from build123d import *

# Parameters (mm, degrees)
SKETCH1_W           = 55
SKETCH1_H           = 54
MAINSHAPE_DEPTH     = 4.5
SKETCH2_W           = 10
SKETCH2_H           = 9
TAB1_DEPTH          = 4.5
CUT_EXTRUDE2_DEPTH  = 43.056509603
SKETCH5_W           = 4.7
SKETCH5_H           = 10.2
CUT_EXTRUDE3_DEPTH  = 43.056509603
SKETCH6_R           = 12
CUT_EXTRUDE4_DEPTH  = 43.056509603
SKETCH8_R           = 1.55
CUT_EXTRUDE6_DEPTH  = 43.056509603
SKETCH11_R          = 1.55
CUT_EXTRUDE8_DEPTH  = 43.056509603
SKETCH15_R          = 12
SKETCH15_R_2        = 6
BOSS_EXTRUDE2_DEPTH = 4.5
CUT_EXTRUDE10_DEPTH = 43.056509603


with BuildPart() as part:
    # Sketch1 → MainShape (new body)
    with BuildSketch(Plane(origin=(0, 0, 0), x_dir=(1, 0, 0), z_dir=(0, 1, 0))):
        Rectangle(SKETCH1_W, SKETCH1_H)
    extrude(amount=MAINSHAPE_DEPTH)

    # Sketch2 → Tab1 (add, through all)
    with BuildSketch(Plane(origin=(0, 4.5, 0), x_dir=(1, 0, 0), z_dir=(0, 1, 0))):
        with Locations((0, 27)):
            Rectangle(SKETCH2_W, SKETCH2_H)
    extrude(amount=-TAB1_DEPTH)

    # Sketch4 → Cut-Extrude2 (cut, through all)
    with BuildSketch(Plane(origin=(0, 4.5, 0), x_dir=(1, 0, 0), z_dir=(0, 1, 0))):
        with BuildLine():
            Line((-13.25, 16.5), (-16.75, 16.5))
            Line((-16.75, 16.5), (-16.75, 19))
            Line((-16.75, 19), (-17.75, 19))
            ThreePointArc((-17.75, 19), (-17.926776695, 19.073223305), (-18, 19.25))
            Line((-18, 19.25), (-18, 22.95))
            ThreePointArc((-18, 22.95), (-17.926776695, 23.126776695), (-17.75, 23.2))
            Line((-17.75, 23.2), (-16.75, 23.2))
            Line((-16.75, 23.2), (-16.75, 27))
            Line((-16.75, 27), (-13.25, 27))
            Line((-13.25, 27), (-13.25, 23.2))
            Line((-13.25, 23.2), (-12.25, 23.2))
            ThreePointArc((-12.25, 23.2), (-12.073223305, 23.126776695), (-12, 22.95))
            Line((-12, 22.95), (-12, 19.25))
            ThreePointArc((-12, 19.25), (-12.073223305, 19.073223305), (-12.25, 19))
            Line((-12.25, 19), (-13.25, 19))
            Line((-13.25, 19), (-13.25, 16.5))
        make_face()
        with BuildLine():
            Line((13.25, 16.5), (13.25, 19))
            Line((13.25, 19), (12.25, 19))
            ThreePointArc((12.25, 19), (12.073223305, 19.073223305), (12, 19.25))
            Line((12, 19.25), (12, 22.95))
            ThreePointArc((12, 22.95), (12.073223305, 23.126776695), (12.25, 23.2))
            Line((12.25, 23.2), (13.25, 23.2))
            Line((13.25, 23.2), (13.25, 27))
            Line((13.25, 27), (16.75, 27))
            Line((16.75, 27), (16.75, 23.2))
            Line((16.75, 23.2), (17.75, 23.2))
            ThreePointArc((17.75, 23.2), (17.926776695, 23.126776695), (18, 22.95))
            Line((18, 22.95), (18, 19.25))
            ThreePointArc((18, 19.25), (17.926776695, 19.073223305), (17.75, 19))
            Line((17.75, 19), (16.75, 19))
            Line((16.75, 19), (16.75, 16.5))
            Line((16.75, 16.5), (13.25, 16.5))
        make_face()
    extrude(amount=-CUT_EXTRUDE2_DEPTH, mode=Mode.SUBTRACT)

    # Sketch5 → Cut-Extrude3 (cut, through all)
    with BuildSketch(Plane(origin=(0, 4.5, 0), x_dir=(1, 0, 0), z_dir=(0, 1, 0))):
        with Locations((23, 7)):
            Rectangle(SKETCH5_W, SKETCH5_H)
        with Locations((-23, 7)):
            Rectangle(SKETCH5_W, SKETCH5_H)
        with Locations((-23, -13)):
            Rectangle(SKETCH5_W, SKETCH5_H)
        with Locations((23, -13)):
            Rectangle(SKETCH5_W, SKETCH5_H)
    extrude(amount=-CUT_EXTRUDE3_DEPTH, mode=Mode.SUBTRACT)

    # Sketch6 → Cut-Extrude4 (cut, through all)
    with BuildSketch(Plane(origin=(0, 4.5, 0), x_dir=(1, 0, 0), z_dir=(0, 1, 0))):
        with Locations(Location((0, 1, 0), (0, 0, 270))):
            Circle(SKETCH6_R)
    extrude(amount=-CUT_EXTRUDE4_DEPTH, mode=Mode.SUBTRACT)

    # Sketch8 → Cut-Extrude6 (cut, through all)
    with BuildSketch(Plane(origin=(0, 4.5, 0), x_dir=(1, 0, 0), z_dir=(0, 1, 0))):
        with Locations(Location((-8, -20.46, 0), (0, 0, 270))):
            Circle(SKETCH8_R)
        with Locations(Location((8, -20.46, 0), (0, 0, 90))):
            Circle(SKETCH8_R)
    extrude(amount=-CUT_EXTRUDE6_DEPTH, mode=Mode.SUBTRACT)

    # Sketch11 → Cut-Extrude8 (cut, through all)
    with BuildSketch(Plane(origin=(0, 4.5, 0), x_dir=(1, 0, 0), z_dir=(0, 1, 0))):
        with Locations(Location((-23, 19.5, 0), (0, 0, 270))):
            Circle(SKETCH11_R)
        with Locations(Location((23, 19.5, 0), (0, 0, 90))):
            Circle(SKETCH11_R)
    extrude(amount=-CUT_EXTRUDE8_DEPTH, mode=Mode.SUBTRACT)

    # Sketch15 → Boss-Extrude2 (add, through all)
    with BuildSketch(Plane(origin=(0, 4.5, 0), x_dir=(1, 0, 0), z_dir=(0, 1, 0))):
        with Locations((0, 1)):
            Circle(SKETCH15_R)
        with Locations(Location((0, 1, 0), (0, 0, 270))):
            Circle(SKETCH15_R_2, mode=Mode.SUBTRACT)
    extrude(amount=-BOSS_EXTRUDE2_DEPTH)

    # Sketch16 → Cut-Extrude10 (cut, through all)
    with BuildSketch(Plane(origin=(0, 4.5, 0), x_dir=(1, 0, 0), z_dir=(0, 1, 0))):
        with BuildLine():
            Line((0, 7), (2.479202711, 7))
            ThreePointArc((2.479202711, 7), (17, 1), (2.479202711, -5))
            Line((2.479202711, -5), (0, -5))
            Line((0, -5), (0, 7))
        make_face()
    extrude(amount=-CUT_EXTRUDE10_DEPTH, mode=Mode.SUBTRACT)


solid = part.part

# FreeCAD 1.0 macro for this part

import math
import FreeCAD as App
import Part
import Sketcher

V = App.Vector
Q = App.Units.Quantity

doc = App.newDocument("Part")
body = doc.addObject("PartDesign::Body", "Body")

# Sketch on XZ plane
sketch1 = body.newObject("Sketcher::SketchObject", "Sketch")
sketch1.AttachmentSupport = (doc.getObject("XZ_Plane"), [""])
sketch1.MapMode = "FlatFace"
sketch1.addGeometry(Part.LineSegment(V(-28, -27, 0), V(-28, 27, 0)), False)
sketch1.addGeometry(Part.LineSegment(V(-28, 27, 0), V(28, 27, 0)), False)
sketch1.addGeometry(Part.LineSegment(V(28, 27, 0), V(28, -27, 0)), False)
sketch1.addGeometry(Part.LineSegment(V(28, -27, 0), V(-28, -27, 0)), False)
sketch1.addConstraint(Sketcher.Constraint("Coincident", 0, 2, 1, 1))
sketch1.addConstraint(Sketcher.Constraint("Coincident", 1, 2, 2, 1))
sketch1.addConstraint(Sketcher.Constraint("Coincident", 2, 2, 3, 1))
sketch1.addConstraint(Sketcher.Constraint("Coincident", 3, 2, 0, 1))
sketch1.addConstraint(Sketcher.Constraint("Vertical", 0))
sketch1.addConstraint(Sketcher.Constraint("Horizontal", 1))
sketch1.addConstraint(Sketcher.Constraint("Vertical", 2))
sketch1.addConstraint(Sketcher.Constraint("Horizontal", 3))
sketch1.addConstraint(Sketcher.Constraint("Symmetric", 0, 2, 2, 2, -1, 1))
sketch1.addConstraint(Sketcher.Constraint("DistanceX", 1, 1, 1, 2, Q("55 mm")))
sketch1.addConstraint(Sketcher.Constraint("DistanceY", 0, 1, 0, 2, Q("54 mm")))
pad1 = body.newObject("PartDesign::Pad", "Pad")
pad1.Profile = sketch1
pad1.Length = 4.5
pad1.Reversed = True

# Sketch on XZ plane
sketch2 = body.newObject("Sketcher::SketchObject", "Sketch001")
sketch2.AttachmentSupport = (doc.getObject("XZ_Plane"), [""])
sketch2.MapMode = "FlatFace"
sketch2.AttachmentOffset = App.Placement(V(0, 0, -4.5), App.Rotation())
sketch2.addGeometry(Part.LineSegment(V(-5, -32, 0), V(-5, -22, 0)), False)
sketch2.addGeometry(Part.LineSegment(V(-5, -22, 0), V(5, -22, 0)), False)
sketch2.addGeometry(Part.LineSegment(V(5, -22, 0), V(5, -32, 0)), False)
sketch2.addGeometry(Part.LineSegment(V(5, -32, 0), V(-5, -32, 0)), False)
sketch2.addConstraint(Sketcher.Constraint("Coincident", 0, 2, 1, 1))
sketch2.addConstraint(Sketcher.Constraint("Coincident", 1, 2, 2, 1))
sketch2.addConstraint(Sketcher.Constraint("Coincident", 2, 2, 3, 1))
sketch2.addConstraint(Sketcher.Constraint("Coincident", 3, 2, 0, 1))
sketch2.addConstraint(Sketcher.Constraint("Vertical", 0))
sketch2.addConstraint(Sketcher.Constraint("Horizontal", 1))
sketch2.addConstraint(Sketcher.Constraint("Vertical", 2))
sketch2.addConstraint(Sketcher.Constraint("Horizontal", 3))
sketch2.addConstraint(Sketcher.Constraint("DistanceX", 1, 1, 1, 2, Q("10 mm")))
sketch2.addConstraint(Sketcher.Constraint("DistanceY", 0, 1, 0, 2, Q("9 mm")))
sketch2.addConstraint(Sketcher.Constraint("DistanceX", 0, 2, -1, 1, Q("5 mm")))
sketch2.addConstraint(Sketcher.Constraint("DistanceY", 0, 2, -1, 1, Q("22.5 mm")))
pad2 = body.newObject("PartDesign::Pad", "Pad001")
pad2.Profile = sketch2
pad2.Type = "UpToLast"

# Sketch on XZ plane
sketch3 = body.newObject("Sketcher::SketchObject", "Sketch002")
sketch3.AttachmentSupport = (doc.getObject("XZ_Plane"), [""])
sketch3.MapMode = "FlatFace"
sketch3.AttachmentOffset = App.Placement(V(0, 0, -4.5), App.Rotation())
sketch3.addGeometry(Part.LineSegment(V(-16.75, -16.5, 0), V(-13.25, -16.5, 0)), False)
sketch3.addGeometry(Part.LineSegment(V(-13.25, -16.5, 0), V(-13.25, -19, 0)), False)
sketch3.addGeometry(Part.LineSegment(V(-13.25, -19, 0), V(-12.25, -19, 0)), False)
sketch3.addGeometry(Part.ArcOfCircle(Part.Circle(V(-12.25, -19.25, 0), V(0, 0, 1), 0.25), math.radians(0), math.radians(90)), False)
sketch3.addGeometry(Part.LineSegment(V(-12, -19.25, 0), V(-12, -22.95, 0)), False)
sketch3.addGeometry(Part.ArcOfCircle(Part.Circle(V(-12.25, -22.95, 0), V(0, 0, 1), 0.25), math.radians(-90), math.radians(0)), False)
sketch3.addGeometry(Part.LineSegment(V(-12.25, -23.2, 0), V(-13.25, -23.2, 0)), False)
sketch3.addGeometry(Part.LineSegment(V(-13.25, -23.2, 0), V(-13.25, -27, 0)), False)
sketch3.addGeometry(Part.LineSegment(V(-13.25, -27, 0), V(-16.75, -27, 0)), False)
sketch3.addGeometry(Part.LineSegment(V(-16.75, -27, 0), V(-16.75, -23.2, 0)), False)
sketch3.addGeometry(Part.LineSegment(V(-16.75, -23.2, 0), V(-17.75, -23.2, 0)), False)
sketch3.addGeometry(Part.ArcOfCircle(Part.Circle(V(-17.75, -22.95, 0), V(0, 0, 1), 0.25), math.radians(-180), math.radians(-90)), False)
sketch3.addGeometry(Part.LineSegment(V(-18, -22.95, 0), V(-18, -19.25, 0)), False)
sketch3.addGeometry(Part.ArcOfCircle(Part.Circle(V(-17.75, -19.25, 0), V(0, 0, 1), 0.25), math.radians(90), math.radians(180)), False)
sketch3.addGeometry(Part.LineSegment(V(-17.75, -19, 0), V(-16.75, -19, 0)), False)
sketch3.addGeometry(Part.LineSegment(V(-16.75, -19, 0), V(-16.75, -16.5, 0)), False)
sketch3.addGeometry(Part.LineSegment(V(13.25, -19, 0), V(13.25, -16.5, 0)), False)
sketch3.addGeometry(Part.LineSegment(V(13.25, -16.5, 0), V(16.75, -16.5, 0)), False)
sketch3.addGeometry(Part.LineSegment(V(16.75, -16.5, 0), V(16.75, -19, 0)), False)
sketch3.addGeometry(Part.LineSegment(V(16.75, -19, 0), V(17.75, -19, 0)), False)
sketch3.addGeometry(Part.ArcOfCircle(Part.Circle(V(17.75, -19.25, 0), V(0, 0, 1), 0.25), math.radians(0), math.radians(90)), False)
sketch3.addGeometry(Part.LineSegment(V(18, -19.25, 0), V(18, -22.95, 0)), False)
sketch3.addGeometry(Part.ArcOfCircle(Part.Circle(V(17.75, -22.95, 0), V(0, 0, 1), 0.25), math.radians(-90), math.radians(0)), False)
sketch3.addGeometry(Part.LineSegment(V(17.75, -23.2, 0), V(16.75, -23.2, 0)), False)
sketch3.addGeometry(Part.LineSegment(V(16.75, -23.2, 0), V(16.75, -27, 0)), False)
sketch3.addGeometry(Part.LineSegment(V(16.75, -27, 0), V(13.25, -27, 0)), False)
sketch3.addGeometry(Part.LineSegment(V(13.25, -27, 0), V(13.25, -23.2, 0)), False)
sketch3.addGeometry(Part.LineSegment(V(13.25, -23.2, 0), V(12.25, -23.2, 0)), False)
sketch3.addGeometry(Part.ArcOfCircle(Part.Circle(V(12.25, -22.95, 0), V(0, 0, 1), 0.25), math.radians(-180), math.radians(-90)), False)
sketch3.addGeometry(Part.LineSegment(V(12, -22.95, 0), V(12, -19.25, 0)), False)
sketch3.addGeometry(Part.ArcOfCircle(Part.Circle(V(12.25, -19.25, 0), V(0, 0, 1), 0.25), math.radians(90), math.radians(180)), False)
sketch3.addGeometry(Part.LineSegment(V(12.25, -19, 0), V(13.25, -19, 0)), False)
sketch3.addConstraint(Sketcher.Constraint("Coincident", 0, 2, 1, 1))
sketch3.addConstraint(Sketcher.Constraint("Coincident", 1, 2, 2, 1))
sketch3.addConstraint(Sketcher.Constraint("Tangent", 2, 2, 3, 2))
sketch3.addConstraint(Sketcher.Constraint("Tangent", 3, 1, 4, 1))
sketch3.addConstraint(Sketcher.Constraint("Tangent", 4, 2, 5, 2))
sketch3.addConstraint(Sketcher.Constraint("Tangent", 5, 1, 6, 1))
sketch3.addConstraint(Sketcher.Constraint("Coincident", 6, 2, 7, 1))
sketch3.addConstraint(Sketcher.Constraint("Coincident", 7, 2, 8, 1))
sketch3.addConstraint(Sketcher.Constraint("Coincident", 8, 2, 9, 1))
sketch3.addConstraint(Sketcher.Constraint("Coincident", 9, 2, 10, 1))
sketch3.addConstraint(Sketcher.Constraint("Tangent", 10, 2, 11, 2))
sketch3.addConstraint(Sketcher.Constraint("Tangent", 11, 1, 12, 1))
sketch3.addConstraint(Sketcher.Constraint("Tangent", 12, 2, 13, 2))
sketch3.addConstraint(Sketcher.Constraint("Tangent", 13, 1, 14, 1))
sketch3.addConstraint(Sketcher.Constraint("Coincident", 14, 2, 15, 1))
sketch3.addConstraint(Sketcher.Constraint("Coincident", 15, 2, 0, 1))
sketch3.addConstraint(Sketcher.Constraint("Coincident", 16, 2, 17, 1))
sketch3.addConstraint(Sketcher.Constraint("Coincident", 17, 2, 18, 1))
sketch3.addConstraint(Sketcher.Constraint("Coincident", 18, 2, 19, 1))
sketch3.addConstraint(Sketcher.Constraint("Tangent", 19, 2, 20, 2))
sketch3.addConstraint(Sketcher.Constraint("Tangent", 20, 1, 21, 1))
sketch3.addConstraint(Sketcher.Constraint("Tangent", 21, 2, 22, 2))
sketch3.addConstraint(Sketcher.Constraint("Tangent", 22, 1, 23, 1))
sketch3.addConstraint(Sketcher.Constraint("Coincident", 23, 2, 24, 1))
sketch3.addConstraint(Sketcher.Constraint("Coincident", 24, 2, 25, 1))
sketch3.addConstraint(Sketcher.Constraint("Coincident", 25, 2, 26, 1))
sketch3.addConstraint(Sketcher.Constraint("Coincident", 26, 2, 27, 1))
sketch3.addConstraint(Sketcher.Constraint("Tangent", 27, 2, 28, 2))
sketch3.addConstraint(Sketcher.Constraint("Tangent", 28, 1, 29, 1))
sketch3.addConstraint(Sketcher.Constraint("Tangent", 29, 2, 30, 2))
sketch3.addConstraint(Sketcher.Constraint("Tangent", 30, 1, 31, 1))
sketch3.addConstraint(Sketcher.Constraint("Coincident", 31, 2, 16, 1))
sketch3.addConstraint(Sketcher.Constraint("Horizontal", 0))
sketch3.addConstraint(Sketcher.Constraint("Vertical", 1))
sketch3.addConstraint(Sketcher.Constraint("Horizontal", 2))
sketch3.addConstraint(Sketcher.Constraint("Vertical", 4))
sketch3.addConstraint(Sketcher.Constraint("Horizontal", 6))
sketch3.addConstraint(Sketcher.Constraint("Vertical", 7))
sketch3.addConstraint(Sketcher.Constraint("Horizontal", 8))
sketch3.addConstraint(Sketcher.Constraint("Vertical", 9))
sketch3.addConstraint(Sketcher.Constraint("Horizontal", 10))
sketch3.addConstraint(Sketcher.Constraint("Vertical", 12))
sketch3.addConstraint(Sketcher.Constraint("Horizontal", 14))
sketch3.addConstraint(Sketcher.Constraint("Vertical", 15))
sketch3.addConstraint(Sketcher.Constraint("Vertical", 16))
sketch3.addConstraint(Sketcher.Constraint("Horizontal", 17))
sketch3.addConstraint(Sketcher.Constraint("Vertical", 18))
sketch3.addConstraint(Sketcher.Constraint("Horizontal", 19))
sketch3.addConstraint(Sketcher.Constraint("Vertical", 21))
sketch3.addConstraint(Sketcher.Constraint("Horizontal", 23))
sketch3.addConstraint(Sketcher.Constraint("Vertical", 24))
sketch3.addConstraint(Sketcher.Constraint("Horizontal", 25))
sketch3.addConstraint(Sketcher.Constraint("Vertical", 26))
sketch3.addConstraint(Sketcher.Constraint("Horizontal", 27))
sketch3.addConstraint(Sketcher.Constraint("Vertical", 29))
sketch3.addConstraint(Sketcher.Constraint("Horizontal", 31))
sketch3.addConstraint(Sketcher.Constraint("Equal", 3, 5))
sketch3.addConstraint(Sketcher.Constraint("Equal", 5, 11))
sketch3.addConstraint(Sketcher.Constraint("Equal", 11, 13))
sketch3.addConstraint(Sketcher.Constraint("Equal", 13, 20))
sketch3.addConstraint(Sketcher.Constraint("Equal", 20, 22))
sketch3.addConstraint(Sketcher.Constraint("Equal", 22, 28))
sketch3.addConstraint(Sketcher.Constraint("Equal", 28, 30))
sketch3.addConstraint(Sketcher.Constraint("Symmetric", 13, 3, 20, 3, -2))
sketch3.addConstraint(Sketcher.Constraint("Symmetric", 5, 3, 28, 3, -2))
sketch3.addConstraint(Sketcher.Constraint("Symmetric", 0, 2, 16, 2, -2))
sketch3.addConstraint(Sketcher.Constraint("Symmetric", 9, 2, 23, 2, -2))
sketch3.addConstraint(Sketcher.Constraint("Symmetric", 7, 2, 25, 2, -2))
sketch3.addConstraint(Sketcher.Constraint("Horizontal", 5, 3, 11, 3))
sketch3.addConstraint(Sketcher.Constraint("Horizontal", 3, 3, 13, 3))
sketch3.addConstraint(Sketcher.Constraint("Horizontal", 20, 3, 30, 3))
sketch3.addConstraint(Sketcher.Constraint("Vertical", 1, 2, 6, 2))
sketch3.addConstraint(Sketcher.Constraint("Vertical", 9, 2, 14, 2))
sketch3.addConstraint(Sketcher.Constraint("Vertical", 18, 2, 23, 2))
sketch3.addConstraint(Sketcher.Constraint("Equal", 6, 10))
sketch3.addConstraint(Sketcher.Constraint("DistanceX", 2, 1, 2, 2, Q("1 mm")))
sketch3.addConstraint(Sketcher.Constraint("Radius", 3, Q("0.25 mm")))
sketch3.addConstraint(Sketcher.Constraint("DistanceX", 0, 1, 0, 2, Q("3.5 mm")))
sketch3.addConstraint(Sketcher.Constraint("DistanceY", 1, 2, 1, 1, Q("2.5 mm")))
sketch3.addConstraint(Sketcher.Constraint("DistanceY", 4, 2, 4, 1, Q("3.7 mm")))
sketch3.addConstraint(Sketcher.Constraint("DistanceY", 7, 2, 7, 1, Q("3.8 mm")))
sketch3.addConstraint(Sketcher.Constraint("DistanceY", 1, 2, -1, 1, Q("19 mm")))
sketch3.addConstraint(Sketcher.Constraint("DistanceX", 3, 1, -1, 1, Q("12 mm")))
pocket1 = body.newObject("PartDesign::Pocket", "Pocket")
pocket1.Profile = sketch3
pocket1.Type = "ThroughAll"
pocket1.Reversed = True

# Sketch on XZ plane
sketch4 = body.newObject("Sketcher::SketchObject", "Sketch003")
sketch4.AttachmentSupport = (doc.getObject("XZ_Plane"), [""])
sketch4.MapMode = "FlatFace"
sketch4.AttachmentOffset = App.Placement(V(0, 0, -4.5), App.Rotation())
sketch4.addGeometry(Part.LineSegment(V(20.6, -12.1, 0), V(20.6, -1.9, 0)), False)
sketch4.addGeometry(Part.LineSegment(V(20.6, -1.9, 0), V(25.4, -1.9, 0)), False)
sketch4.addGeometry(Part.LineSegment(V(25.4, -1.9, 0), V(25.4, -12.1, 0)), False)
sketch4.addGeometry(Part.LineSegment(V(25.4, -12.1, 0), V(20.6, -12.1, 0)), False)
sketch4.addGeometry(Part.LineSegment(V(-25.4, -12.1, 0), V(-25.4, -1.9, 0)), False)
sketch4.addGeometry(Part.LineSegment(V(-25.4, -1.9, 0), V(-20.6, -1.9, 0)), False)
sketch4.addGeometry(Part.LineSegment(V(-20.6, -1.9, 0), V(-20.6, -12.1, 0)), False)
sketch4.addGeometry(Part.LineSegment(V(-20.6, -12.1, 0), V(-25.4, -12.1, 0)), False)
sketch4.addGeometry(Part.LineSegment(V(-25.4, 7.9, 0), V(-25.4, 18.1, 0)), False)
sketch4.addGeometry(Part.LineSegment(V(-25.4, 18.1, 0), V(-20.6, 18.1, 0)), False)
sketch4.addGeometry(Part.LineSegment(V(-20.6, 18.1, 0), V(-20.6, 7.9, 0)), False)
sketch4.addGeometry(Part.LineSegment(V(-20.6, 7.9, 0), V(-25.4, 7.9, 0)), False)
sketch4.addGeometry(Part.LineSegment(V(20.6, 7.9, 0), V(20.6, 18.1, 0)), False)
sketch4.addGeometry(Part.LineSegment(V(20.6, 18.1, 0), V(25.4, 18.1, 0)), False)
sketch4.addGeometry(Part.LineSegment(V(25.4, 18.1, 0), V(25.4, 7.9, 0)), False)
sketch4.addGeometry(Part.LineSegment(V(25.4, 7.9, 0), V(20.6, 7.9, 0)), False)
sketch4.addConstraint(Sketcher.Constraint("Coincident", 0, 2, 1, 1))
sketch4.addConstraint(Sketcher.Constraint("Coincident", 1, 2, 2, 1))
sketch4.addConstraint(Sketcher.Constraint("Coincident", 2, 2, 3, 1))
sketch4.addConstraint(Sketcher.Constraint("Coincident", 3, 2, 0, 1))
sketch4.addConstraint(Sketcher.Constraint("Coincident", 4, 2, 5, 1))
sketch4.addConstraint(Sketcher.Constraint("Coincident", 5, 2, 6, 1))
sketch4.addConstraint(Sketcher.Constraint("Coincident", 6, 2, 7, 1))
sketch4.addConstraint(Sketcher.Constraint("Coincident", 7, 2, 4, 1))
sketch4.addConstraint(Sketcher.Constraint("Coincident", 8, 2, 9, 1))
sketch4.addConstraint(Sketcher.Constraint("Coincident", 9, 2, 10, 1))
sketch4.addConstraint(Sketcher.Constraint("Coincident", 10, 2, 11, 1))
sketch4.addConstraint(Sketcher.Constraint("Coincident", 11, 2, 8, 1))
sketch4.addConstraint(Sketcher.Constraint("Coincident", 12, 2, 13, 1))
sketch4.addConstraint(Sketcher.Constraint("Coincident", 13, 2, 14, 1))
sketch4.addConstraint(Sketcher.Constraint("Coincident", 14, 2, 15, 1))
sketch4.addConstraint(Sketcher.Constraint("Coincident", 15, 2, 12, 1))
sketch4.addConstraint(Sketcher.Constraint("Vertical", 0))
sketch4.addConstraint(Sketcher.Constraint("Horizontal", 1))
sketch4.addConstraint(Sketcher.Constraint("Vertical", 2))
sketch4.addConstraint(Sketcher.Constraint("Horizontal", 3))
sketch4.addConstraint(Sketcher.Constraint("Vertical", 4))
sketch4.addConstraint(Sketcher.Constraint("Horizontal", 5))
sketch4.addConstraint(Sketcher.Constraint("Vertical", 6))
sketch4.addConstraint(Sketcher.Constraint("Horizontal", 7))
sketch4.addConstraint(Sketcher.Constraint("Vertical", 8))
sketch4.addConstraint(Sketcher.Constraint("Horizontal", 9))
sketch4.addConstraint(Sketcher.Constraint("Vertical", 10))
sketch4.addConstraint(Sketcher.Constraint("Horizontal", 11))
sketch4.addConstraint(Sketcher.Constraint("Vertical", 12))
sketch4.addConstraint(Sketcher.Constraint("Horizontal", 13))
sketch4.addConstraint(Sketcher.Constraint("Vertical", 14))
sketch4.addConstraint(Sketcher.Constraint("Horizontal", 15))
sketch4.addConstraint(Sketcher.Constraint("Symmetric", 1, 2, 4, 2, -2))
sketch4.addConstraint(Sketcher.Constraint("Symmetric", 3, 2, 6, 2, -2))
sketch4.addConstraint(Sketcher.Constraint("Symmetric", 9, 2, 12, 2, -2))
sketch4.addConstraint(Sketcher.Constraint("Symmetric", 11, 2, 14, 2, -2))
sketch4.addConstraint(Sketcher.Constraint("Vertical", 7, 2, 8, 2))
sketch4.addConstraint(Sketcher.Constraint("Vertical", 6, 2, 9, 2))
sketch4.addConstraint(Sketcher.Constraint("Equal", 6, 8))
sketch4.addConstraint(Sketcher.Constraint("DistanceX", 1, 1, 1, 2, Q("4.7 mm")))
sketch4.addConstraint(Sketcher.Constraint("DistanceY", 0, 1, 0, 2, Q("10.2 mm")))
sketch4.addConstraint(Sketcher.Constraint("DistanceX", 4, 2, 0, 2, Q("46 mm")))
sketch4.addConstraint(Sketcher.Constraint("DistanceY", 4, 2, 8, 2, Q("20 mm")))
sketch4.addConstraint(Sketcher.Constraint("DistanceY", 0, 2, -1, 1, Q("1.9 mm")))
pocket2 = body.newObject("PartDesign::Pocket", "Pocket001")
pocket2.Profile = sketch4
pocket2.Type = "ThroughAll"
pocket2.Reversed = True

# Sketch on XZ plane
sketch5 = body.newObject("Sketcher::SketchObject", "Sketch004")
sketch5.AttachmentSupport = (doc.getObject("XZ_Plane"), [""])
sketch5.MapMode = "FlatFace"
sketch5.AttachmentOffset = App.Placement(V(0, 0, -4.5), App.Rotation())
sketch5.addGeometry(Part.Circle(V(0, -1, 0), V(0, 0, 1), 12), False)
sketch5.addConstraint(Sketcher.Constraint("PointOnObject", 0, 3, -2))
sketch5.addConstraint(Sketcher.Constraint("Diameter", 0, Q("24 mm")))
sketch5.addConstraint(Sketcher.Constraint("DistanceY", 0, 3, -1, 1, Q("1 mm")))
pocket3 = body.newObject("PartDesign::Pocket", "Pocket002")
pocket3.Profile = sketch5
pocket3.Type = "ThroughAll"
pocket3.Reversed = True

# Sketch on XZ plane
sketch6 = body.newObject("Sketcher::SketchObject", "Sketch005")
sketch6.AttachmentSupport = (doc.getObject("XZ_Plane"), [""])
sketch6.MapMode = "FlatFace"
sketch6.AttachmentOffset = App.Placement(V(0, 0, -4.5), App.Rotation())
sketch6.addGeometry(Part.Circle(V(-8, 20.5, 0), V(0, 0, 1), 1.6), False)
sketch6.addGeometry(Part.Circle(V(8, 20.5, 0), V(0, 0, 1), 1.6), False)
sketch6.addConstraint(Sketcher.Constraint("Equal", 0, 1))
sketch6.addConstraint(Sketcher.Constraint("Symmetric", 0, 3, 1, 3, -2))
sketch6.addConstraint(Sketcher.Constraint("Diameter", 0, Q("3.1 mm")))
sketch6.addConstraint(Sketcher.Constraint("DistanceX", 0, 3, -1, 1, Q("8 mm")))
sketch6.addConstraint(Sketcher.Constraint("DistanceY", -1, 1, 0, 3, Q("20.46 mm")))
pocket4 = body.newObject("PartDesign::Pocket", "Pocket003")
pocket4.Profile = sketch6
pocket4.Type = "ThroughAll"
pocket4.Reversed = True

# Sketch on XZ plane
sketch7 = body.newObject("Sketcher::SketchObject", "Sketch006")
sketch7.AttachmentSupport = (doc.getObject("XZ_Plane"), [""])
sketch7.MapMode = "FlatFace"
sketch7.AttachmentOffset = App.Placement(V(0, 0, -4.5), App.Rotation())
sketch7.addGeometry(Part.Circle(V(-23, -19.5, 0), V(0, 0, 1), 1.6), False)
sketch7.addGeometry(Part.Circle(V(23, -19.5, 0), V(0, 0, 1), 1.6), False)
sketch7.addConstraint(Sketcher.Constraint("Equal", 0, 1))
sketch7.addConstraint(Sketcher.Constraint("Symmetric", 0, 3, 1, 3, -2))
sketch7.addConstraint(Sketcher.Constraint("Diameter", 0, Q("3.1 mm")))
sketch7.addConstraint(Sketcher.Constraint("DistanceX", 0, 3, -1, 1, Q("23 mm")))
sketch7.addConstraint(Sketcher.Constraint("DistanceY", 0, 3, -1, 1, Q("19.5 mm")))
pocket5 = body.newObject("PartDesign::Pocket", "Pocket004")
pocket5.Profile = sketch7
pocket5.Type = "ThroughAll"
pocket5.Reversed = True

# Sketch on XZ plane
sketch8 = body.newObject("Sketcher::SketchObject", "Sketch007")
sketch8.AttachmentSupport = (doc.getObject("XZ_Plane"), [""])
sketch8.MapMode = "FlatFace"
sketch8.AttachmentOffset = App.Placement(V(0, 0, -4.5), App.Rotation())
sketch8.addGeometry(Part.Circle(V(0, -1, 0), V(0, 0, 1), 12), False)
sketch8.addGeometry(Part.Circle(V(0, -1, 0), V(0, 0, 1), 6), False)
sketch8.addConstraint(Sketcher.Constraint("Coincident", 1, 3, 0, 3))
sketch8.addConstraint(Sketcher.Constraint("PointOnObject", 0, 3, -2))
sketch8.addConstraint(Sketcher.Constraint("Diameter", 0, Q("24 mm")))
sketch8.addConstraint(Sketcher.Constraint("Diameter", 1, Q("12 mm")))
sketch8.addConstraint(Sketcher.Constraint("DistanceY", 0, 3, -1, 1, Q("1 mm")))
pad3 = body.newObject("PartDesign::Pad", "Pad002")
pad3.Profile = sketch8
pad3.Length = 4.5

# Sketch on XZ plane
sketch9 = body.newObject("Sketcher::SketchObject", "Sketch008")
sketch9.AttachmentSupport = (doc.getObject("XZ_Plane"), [""])
sketch9.MapMode = "FlatFace"
sketch9.AttachmentOffset = App.Placement(V(0, 0, -4.5), App.Rotation())
sketch9.addGeometry(Part.LineSegment(V(2.5, -7, 0), V(0, -7, 0)), False)
sketch9.addGeometry(Part.LineSegment(V(0, -7, 0), V(0, 5, 0)), False)
sketch9.addGeometry(Part.LineSegment(V(0, 5, 0), V(2.5, 5, 0)), False)
sketch9.addGeometry(Part.ArcOfCircle(Part.Circle(V(8.5, -1, 0), V(0, 0, 1), 8.5), math.radians(-135), math.radians(135)), False)
sketch9.addConstraint(Sketcher.Constraint("Coincident", 0, 2, 1, 1))
sketch9.addConstraint(Sketcher.Constraint("Coincident", 1, 2, 2, 1))
sketch9.addConstraint(Sketcher.Constraint("Coincident", 2, 2, 3, 2))
sketch9.addConstraint(Sketcher.Constraint("Coincident", 3, 1, 0, 1))
sketch9.addConstraint(Sketcher.Constraint("Horizontal", 0))
sketch9.addConstraint(Sketcher.Constraint("Vertical", 1))
sketch9.addConstraint(Sketcher.Constraint("Horizontal", 2))
sketch9.addConstraint(Sketcher.Constraint("PointOnObject", 0, 2, -2))
sketch9.addConstraint(Sketcher.Constraint("Vertical", 2, 2, 3, 1))
sketch9.addConstraint(Sketcher.Constraint("Radius", 3, Q("8.5 mm")))
sketch9.addConstraint(Sketcher.Constraint("DistanceY", 1, 1, 1, 2, Q("12 mm")))
sketch9.addConstraint(Sketcher.Constraint("DistanceY", 3, 3, -1, 1, Q("1 mm")))
sketch9.addConstraint(Sketcher.Constraint("DistanceX", -1, 1, 3, 3, Q("8.5 mm")))
pocket6 = body.newObject("PartDesign::Pocket", "Pocket005")
pocket6.Profile = sketch9
pocket6.Type = "ThroughAll"
pocket6.Reversed = True

doc.recompute()
